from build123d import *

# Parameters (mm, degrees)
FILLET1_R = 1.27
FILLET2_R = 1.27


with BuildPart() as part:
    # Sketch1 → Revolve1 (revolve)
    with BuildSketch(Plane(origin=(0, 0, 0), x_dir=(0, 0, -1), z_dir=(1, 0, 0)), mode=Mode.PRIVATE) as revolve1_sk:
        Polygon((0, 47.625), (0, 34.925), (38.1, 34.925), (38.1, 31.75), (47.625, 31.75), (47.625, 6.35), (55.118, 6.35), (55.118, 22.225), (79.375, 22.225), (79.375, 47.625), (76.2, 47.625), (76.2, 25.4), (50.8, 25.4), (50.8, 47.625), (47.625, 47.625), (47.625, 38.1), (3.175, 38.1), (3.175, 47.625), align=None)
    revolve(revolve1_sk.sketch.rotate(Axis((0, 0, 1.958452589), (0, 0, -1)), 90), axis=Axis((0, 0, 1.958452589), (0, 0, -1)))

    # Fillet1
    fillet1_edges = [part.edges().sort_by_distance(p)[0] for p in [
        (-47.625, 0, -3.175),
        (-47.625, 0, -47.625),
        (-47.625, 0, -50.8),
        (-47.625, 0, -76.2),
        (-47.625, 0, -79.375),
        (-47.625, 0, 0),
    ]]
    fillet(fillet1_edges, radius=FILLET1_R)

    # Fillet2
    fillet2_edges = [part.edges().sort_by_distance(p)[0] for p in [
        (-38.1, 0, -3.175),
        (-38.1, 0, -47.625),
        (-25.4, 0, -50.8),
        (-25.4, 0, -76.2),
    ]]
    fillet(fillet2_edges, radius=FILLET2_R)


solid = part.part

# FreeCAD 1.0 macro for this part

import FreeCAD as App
import Part
import Sketcher
from FreeCAD import Vector
Q = App.Units.Quantity


def edges_at(feature, points):
    """Names of the edges that pass closest to the given points."""
    edges = feature.Shape.Edges
    near = lambda p: min(range(len(edges)), key=lambda i: edges[i].distToShape(Part.Vertex(*p))[0])
    return sorted({f"Edge{near(p) + 1}" for p in points})


def add_polygon(sketch, points):
    """Adds a closed chain of lines whose ends are joined by coincident constraints."""
    first, n = sketch.GeometryCount, len(points)
    for a, b in zip(points, points[1:] + points[:1]):
        sketch.addGeometry(Part.LineSegment(App.Vector(*a, 0), App.Vector(*b, 0)), False)
    for i in range(n):
        sketch.addConstraint(Sketcher.Constraint("Coincident", first + i, 2, first + (i + 1) % n, 1))

doc = App.newDocument("Part")
params = doc.addObject("Spreadsheet::Sheet", "Params")
for row, (alias, value) in enumerate([
    ("sketch1_width", "1 in"),
    ("sketch1_width2", "0.5 in"),
    ("sketch1_height", "1.5 in"),
    ("sketch1_height2", "1.75 in"),
    ("sketch1_height3", "0.295 in"),
    ("revolution_angle", "360 deg"),
    ("fillet_radius", "0.05 in"),
    ("fillet2_radius", "0.05 in"),
], start=1):
    params.set(f"A{row}", alias)
    params.set(f"B{row}", "=" + value)
    params.setAlias(f"B{row}", alias)

body = doc.addObject("PartDesign::Body", "Body")

# Sketch on YZ plane
sketch1 = body.newObject("Sketcher::SketchObject", "Sketch")
sketch1.AttachmentSupport = (doc.getObject("YZ_Plane"), [""])
sketch1.MapMode = "FlatFace"
add_polygon(sketch1, [(47.6, 0), (34.9, 0), (34.9, -38.1), (31.8, -38.1), (31.8, -47.6), (6.3, -47.6), (6.3, -55.1), (22.2, -55.1), (22.2, -79.4), (47.6, -79.4), (47.6, -76.2), (25.4, -76.2), (25.4, -50.8), (47.6, -50.8), (47.6, -47.6), (38.1, -47.6), (38.1, -3.2), (47.6, -3.2)])  # lines 0-17
sketch1.addConstraint(Sketcher.Constraint("Horizontal", 0))
sketch1.addConstraint(Sketcher.Constraint("Vertical", 1))
sketch1.addConstraint(Sketcher.Constraint("Horizontal", 2))
sketch1.addConstraint(Sketcher.Constraint("Vertical", 3))
sketch1.addConstraint(Sketcher.Constraint("Horizontal", 4))
sketch1.addConstraint(Sketcher.Constraint("Vertical", 5))
sketch1.addConstraint(Sketcher.Constraint("Horizontal", 6))
sketch1.addConstraint(Sketcher.Constraint("Vertical", 7))
sketch1.addConstraint(Sketcher.Constraint("Horizontal", 8))
sketch1.addConstraint(Sketcher.Constraint("Vertical", 9))
sketch1.addConstraint(Sketcher.Constraint("Horizontal", 10))
sketch1.addConstraint(Sketcher.Constraint("Vertical", 11))
sketch1.addConstraint(Sketcher.Constraint("Horizontal", 12))
sketch1.addConstraint(Sketcher.Constraint("Vertical", 13))
sketch1.addConstraint(Sketcher.Constraint("Horizontal", 14))
sketch1.addConstraint(Sketcher.Constraint("Vertical", 15))
sketch1.addConstraint(Sketcher.Constraint("Horizontal", 16))
sketch1.addConstraint(Sketcher.Constraint("Vertical", 17))
sketch1.addConstraint(Sketcher.Constraint("PointOnObject", 0, 2, -1))
sketch1.addConstraint(Sketcher.Constraint("Horizontal", 4, 2, 13, 2))
sketch1.addConstraint(Sketcher.Constraint("Vertical", 9, 2, 12, 2))
sketch1.addConstraint(Sketcher.Constraint("Vertical", 13, 2, 16, 2))
sketch1.addConstraint(Sketcher.Constraint("Equal", 4, 8))
sketch1.addConstraint(Sketcher.Constraint("Equal", 16, 3))
sketch1.addConstraint(Sketcher.Constraint("Equal", 2, 9))
sketch1.addConstraint(Sketcher.Constraint("Equal", 8, 11))
sketch1.addConstraint(Sketcher.Constraint("Equal", 9, 13))
sketch1.addConstraint(Sketcher.Constraint("Equal", 13, 17))
sketch1.addConstraint(Sketcher.Constraint("DistanceX", 4, 2, 4, 1, Q("1 in")))
sketch1.addConstraint(Sketcher.Constraint("DistanceX", 0, 2, 0, 1, Q("0.5 in")))
sketch1.addConstraint(Sketcher.Constraint("DistanceY", 1, 2, 1, 1, Q("1.5 in")))
sketch1.addConstraint(Sketcher.Constraint("DistanceY", 9, 2, -1, 1, Q("3 in")))
sketch1.addConstraint(Sketcher.Constraint("DistanceX", -1, 1, 10, 2, Q("1 in")))
sketch1.addConstraint(Sketcher.Constraint("DistanceY", 15, 1, 15, 2, Q("1.75 in")))
sketch1.addConstraint(Sketcher.Constraint("DistanceX", -1, 1, 14, 2, Q("1.5 in")))
sketch1.addConstraint(Sketcher.Constraint("DistanceY", 5, 2, 5, 1, Q("0.295 in")))
sketch1.setExpression("Constraints[46]", "Params.sketch1_width")
sketch1.setExpression("Constraints[47]", "Params.sketch1_width2")
sketch1.setExpression("Constraints[48]", "Params.sketch1_height")
sketch1.setExpression("Constraints[51]", "Params.sketch1_height2")
sketch1.setExpression("Constraints[53]", "Params.sketch1_height3")
revolution = body.newObject("PartDesign::Revolution", "Revolution")
revolution.Profile = sketch1
revolution.ReferenceAxis = (sketch1, ["V_Axis"])
revolution.setExpression("Angle", "Params.revolution_angle")
doc.recompute()

fillet = body.newObject("PartDesign::Fillet", "Fillet")
fillet.Base = (revolution, edges_at(revolution, [
    (-47.625, 0, -3.175),
    (-47.625, 0, -47.625),
    (-47.625, 0, -50.8),
    (-47.625, 0, -76.2),
    (-47.625, 0, -79.375),
    (-47.625, 0, 0),
]))
fillet.setExpression("Radius", "Params.fillet_radius")
doc.recompute()

fillet2 = body.newObject("PartDesign::Fillet", "Fillet001")
fillet2.Base = (fillet, edges_at(fillet, [
    (-38.1, 0, -3.175),
    (-38.1, 0, -47.625),
    (-25.4, 0, -50.8),
    (-25.4, 0, -76.2),
]))
fillet2.setExpression("Radius", "Params.fillet2_radius")

doc.recompute()
